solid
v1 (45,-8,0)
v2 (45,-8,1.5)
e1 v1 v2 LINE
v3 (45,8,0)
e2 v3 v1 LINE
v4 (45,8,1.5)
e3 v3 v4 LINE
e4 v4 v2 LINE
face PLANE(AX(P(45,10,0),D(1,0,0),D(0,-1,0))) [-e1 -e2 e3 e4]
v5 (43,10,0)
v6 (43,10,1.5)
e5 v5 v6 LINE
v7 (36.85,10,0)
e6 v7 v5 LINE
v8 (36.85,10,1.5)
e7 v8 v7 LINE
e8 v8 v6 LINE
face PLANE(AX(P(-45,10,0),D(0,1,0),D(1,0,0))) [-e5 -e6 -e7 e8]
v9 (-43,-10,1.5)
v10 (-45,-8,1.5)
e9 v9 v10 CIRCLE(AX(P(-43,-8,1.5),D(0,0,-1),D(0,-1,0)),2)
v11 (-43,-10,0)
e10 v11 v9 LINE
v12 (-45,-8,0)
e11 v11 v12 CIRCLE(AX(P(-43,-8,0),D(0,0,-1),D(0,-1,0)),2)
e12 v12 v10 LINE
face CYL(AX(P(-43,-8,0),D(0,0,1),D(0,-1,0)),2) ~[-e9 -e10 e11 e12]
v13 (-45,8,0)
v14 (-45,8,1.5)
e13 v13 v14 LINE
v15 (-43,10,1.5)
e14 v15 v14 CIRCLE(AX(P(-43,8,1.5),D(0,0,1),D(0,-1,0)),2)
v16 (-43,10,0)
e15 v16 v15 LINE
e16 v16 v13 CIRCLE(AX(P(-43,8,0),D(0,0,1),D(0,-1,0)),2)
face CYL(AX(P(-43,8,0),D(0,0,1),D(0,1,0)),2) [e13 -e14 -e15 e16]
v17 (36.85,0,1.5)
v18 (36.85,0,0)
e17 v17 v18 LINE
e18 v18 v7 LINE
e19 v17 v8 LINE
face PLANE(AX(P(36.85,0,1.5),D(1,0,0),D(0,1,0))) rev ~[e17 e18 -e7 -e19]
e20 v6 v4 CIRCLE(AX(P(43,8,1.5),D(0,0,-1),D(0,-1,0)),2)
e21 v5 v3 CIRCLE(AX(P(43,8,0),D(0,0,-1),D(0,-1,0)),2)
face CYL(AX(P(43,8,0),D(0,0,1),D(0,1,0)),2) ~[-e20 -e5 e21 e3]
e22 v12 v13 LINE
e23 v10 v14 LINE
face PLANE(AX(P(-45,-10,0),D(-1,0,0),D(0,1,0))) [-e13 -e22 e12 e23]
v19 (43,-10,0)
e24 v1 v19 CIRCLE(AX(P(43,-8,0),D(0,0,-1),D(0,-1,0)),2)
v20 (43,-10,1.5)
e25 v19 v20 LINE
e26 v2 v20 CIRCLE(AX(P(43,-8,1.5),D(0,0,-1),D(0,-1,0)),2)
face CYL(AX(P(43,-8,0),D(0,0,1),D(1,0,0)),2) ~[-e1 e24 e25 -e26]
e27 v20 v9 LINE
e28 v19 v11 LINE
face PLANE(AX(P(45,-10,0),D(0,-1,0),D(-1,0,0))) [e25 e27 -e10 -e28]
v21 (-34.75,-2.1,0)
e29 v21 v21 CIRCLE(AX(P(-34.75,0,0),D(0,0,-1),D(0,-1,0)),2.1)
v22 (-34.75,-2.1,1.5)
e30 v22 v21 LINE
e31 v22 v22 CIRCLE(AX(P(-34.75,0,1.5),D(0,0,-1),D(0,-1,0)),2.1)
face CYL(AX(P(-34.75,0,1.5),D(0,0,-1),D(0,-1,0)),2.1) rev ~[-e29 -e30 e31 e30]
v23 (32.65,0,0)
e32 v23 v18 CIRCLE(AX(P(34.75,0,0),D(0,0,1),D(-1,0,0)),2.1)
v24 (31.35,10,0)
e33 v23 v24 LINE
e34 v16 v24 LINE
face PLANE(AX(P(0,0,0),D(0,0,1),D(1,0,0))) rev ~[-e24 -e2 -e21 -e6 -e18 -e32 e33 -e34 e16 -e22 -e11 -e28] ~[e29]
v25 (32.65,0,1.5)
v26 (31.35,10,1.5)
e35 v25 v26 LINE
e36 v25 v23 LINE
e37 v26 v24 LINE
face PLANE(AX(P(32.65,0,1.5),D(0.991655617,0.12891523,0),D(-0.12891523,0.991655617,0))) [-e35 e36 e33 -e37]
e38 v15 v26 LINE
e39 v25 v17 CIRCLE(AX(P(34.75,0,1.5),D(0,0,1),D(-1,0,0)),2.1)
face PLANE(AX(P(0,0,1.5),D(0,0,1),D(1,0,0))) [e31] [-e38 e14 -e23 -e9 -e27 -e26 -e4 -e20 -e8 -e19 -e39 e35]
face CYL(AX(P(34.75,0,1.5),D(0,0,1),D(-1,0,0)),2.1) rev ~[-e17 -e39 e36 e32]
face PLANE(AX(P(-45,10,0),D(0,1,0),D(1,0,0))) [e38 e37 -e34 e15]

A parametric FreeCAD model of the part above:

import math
import FreeCAD as App
import Part
import Sketcher
from FreeCAD import Vector


def edges_at(feature, points):
    """Names of the edges that pass closest to the given points."""
    edges = feature.Shape.Edges
    near = lambda p: min(range(len(edges)), key=lambda i: edges[i].distToShape(Part.Vertex(*p))[0])
    return sorted({f"Edge{near(p) + 1}" for p in points})

doc = App.newDocument("Part")
body = doc.addObject("PartDesign::Body", "Body")

# Sketch on XY plane
sketch1 = doc.addObject("Sketcher::SketchObject", "Sketch")
body.addObject(sketch1)
sketch1.AttachmentSupport = (doc.XY_Plane, [""])
sketch1.MapMode = "FlatFace"
sketch1.addGeometry(Part.LineSegment(Vector(45, 10, 0), Vector(-45, 10, 0)), False)
sketch1.addGeometry(Part.LineSegment(Vector(-45, 10, 0), Vector(-45, -10, 0)), False)
sketch1.addGeometry(Part.LineSegment(Vector(-45, -10, 0), Vector(45, -10, 0)), False)
sketch1.addGeometry(Part.LineSegment(Vector(45, -10, 0), Vector(45, 10, 0)), False)
sketch1.addConstraint(Sketcher.Constraint("Coincident", 0, 2, 1, 1))
sketch1.addConstraint(Sketcher.Constraint("Coincident", 1, 2, 2, 1))
sketch1.addConstraint(Sketcher.Constraint("Coincident", 2, 2, 3, 1))
sketch1.addConstraint(Sketcher.Constraint("Coincident", 3, 2, 0, 1))
sketch1.addConstraint(Sketcher.Constraint("Horizontal", 0))
sketch1.addConstraint(Sketcher.Constraint("Vertical", 1))
sketch1.addConstraint(Sketcher.Constraint("Horizontal", 2))
sketch1.addConstraint(Sketcher.Constraint("Vertical", 3))
sketch1.addConstraint(Sketcher.Constraint("Symmetric", 0, 2, 2, 2, -1, 1))
sketch1.addConstraint(Sketcher.Constraint("DistanceX", 0, 2, 0, 1, 90.0))
sketch1.addConstraint(Sketcher.Constraint("DistanceY", 1, 2, 1, 1, 20.0))
pad1 = doc.addObject("PartDesign::Pad", "Pad")
body.addObject(pad1)
pad1.Profile = sketch1
pad1.Length = 1.5
doc.recompute()

fillet = doc.addObject("PartDesign::Fillet", "Fillet")
body.addObject(fillet)
fillet.Base = (pad1, edges_at(pad1, [
    (45, 10, 0.75),
    (45, -10, 0.75),
    (-45, -10, 0.75),
    (-45, 10, 0.75),
]))
fillet.Radius = 2

# Sketch on XY plane
sketch2 = doc.addObject("Sketcher::SketchObject", "Sketch001")
body.addObject(sketch2)
sketch2.AttachmentSupport = (doc.XY_Plane, [""])
sketch2.MapMode = "FlatFace"
sketch2.AttachmentOffset = App.Placement(Vector(0, 0, 1.5), App.Rotation())
sketch2.addGeometry(Part.LineSegment(Vector(32.6, 10, 0), Vector(32.6, 0, 0)), False)
sketch2.addGeometry(Part.ArcOfCircle(Part.Circle(Vector(34.8, 0, 0), Vector(0, 0, 1), 2.1), math.radians(180), math.radians(360)), False)
sketch2.addGeometry(Part.LineSegment(Vector(36.9, 0, 0), Vector(36.9, 10, 0)), False)
sketch2.addGeometry(Part.LineSegment(Vector(36.9, 10, 0), Vector(32.6, 10, 0)), False)
sketch2.addConstraint(Sketcher.Constraint("Tangent", 0, 2, 1, 1))
sketch2.addConstraint(Sketcher.Constraint("Tangent", 1, 2, 2, 1))
sketch2.addConstraint(Sketcher.Constraint("Coincident", 2, 2, 3, 1))
sketch2.addConstraint(Sketcher.Constraint("Coincident", 3, 2, 0, 1))
sketch2.addConstraint(Sketcher.Constraint("Vertical", 0))
sketch2.addConstraint(Sketcher.Constraint("Vertical", 2))
sketch2.addConstraint(Sketcher.Constraint("Horizontal", 3))
sketch2.addConstraint(Sketcher.Constraint("PointOnObject", 1, 3, -1))
sketch2.addConstraint(Sketcher.Constraint("Radius", 1, 2.1))
sketch2.addConstraint(Sketcher.Constraint("DistanceY", 0, 2, 0, 1, 10.0))
sketch2.addConstraint(Sketcher.Constraint("DistanceX", -1, 1, 1, 3, 34.75))
pocket1 = doc.addObject("PartDesign::Pocket", "Pocket")
body.addObject(pocket1)
pocket1.Profile = sketch2
pocket1.Length = 1.5

# Sketch on XY plane
sketch3 = doc.addObject("Sketcher::SketchObject", "Sketch002")
body.addObject(sketch3)
sketch3.AttachmentSupport = (doc.XY_Plane, [""])
sketch3.MapMode = "FlatFace"
sketch3.AttachmentOffset = App.Placement(Vector(0, 0, 1.5), App.Rotation())
sketch3.addGeometry(Part.Circle(Vector(-34.8, 0, 0), Vector(0, 0, 1), 2.1), False)
sketch3.addConstraint(Sketcher.Constraint("PointOnObject", 0, 3, -1))
sketch3.addConstraint(Sketcher.Constraint("Diameter", 0, 4.2))
sketch3.addConstraint(Sketcher.Constraint("DistanceX", 0, 3, -1, 1, 34.75))
doc.recompute()
hole = doc.addObject("PartDesign::Hole", "Hole")
body.addObject(hole)
hole.Profile = sketch3
hole.ThreadType = "None"
hole.Diameter = 4.2
hole.DepthType = "Dimension"
hole.Depth = 1.5
hole.DrillPoint = "Angled"
hole.DrillPointAngle = 118

# Sketch on XY plane
sketch4 = doc.addObject("Sketcher::SketchObject", "Sketch003")
body.addObject(sketch4)
sketch4.AttachmentSupport = (doc.XY_Plane, [""])
sketch4.MapMode = "FlatFace"
sketch4.AttachmentOffset = App.Placement(Vector(0, 0, 1.5), App.Rotation())
sketch4.addGeometry(Part.LineSegment(Vector(32.6, 10, 0), Vector(31.4, 10, 0)), False)
sketch4.addGeometry(Part.LineSegment(Vector(31.4, 10, 0), Vector(32.6, 0, 0)), False)
sketch4.addGeometry(Part.LineSegment(Vector(32.6, 0, 0), Vector(32.6, 10, 0)), False)
sketch4.addConstraint(Sketcher.Constraint("Coincident", 0, 2, 1, 1))
sketch4.addConstraint(Sketcher.Constraint("Coincident", 1, 2, 2, 1))
sketch4.addConstraint(Sketcher.Constraint("Coincident", 2, 2, 0, 1))
sketch4.addConstraint(Sketcher.Constraint("Horizontal", 0))
sketch4.addConstraint(Sketcher.Constraint("Vertical", 2))
sketch4.addConstraint(Sketcher.Constraint("PointOnObject", 1, 2, -1))
sketch4.addConstraint(Sketcher.Constraint("DistanceX", 0, 2, 0, 1, 1.3))
sketch4.addConstraint(Sketcher.Constraint("DistanceY", 2, 1, 2, 2, 10.0))
sketch4.addConstraint(Sketcher.Constraint("DistanceX", -1, 1, 0, 2, 31.35))
pocket2 = doc.addObject("PartDesign::Pocket", "Pocket001")
body.addObject(pocket2)
pocket2.Profile = sketch4
pocket2.Length = 1.5

doc.recompute()
